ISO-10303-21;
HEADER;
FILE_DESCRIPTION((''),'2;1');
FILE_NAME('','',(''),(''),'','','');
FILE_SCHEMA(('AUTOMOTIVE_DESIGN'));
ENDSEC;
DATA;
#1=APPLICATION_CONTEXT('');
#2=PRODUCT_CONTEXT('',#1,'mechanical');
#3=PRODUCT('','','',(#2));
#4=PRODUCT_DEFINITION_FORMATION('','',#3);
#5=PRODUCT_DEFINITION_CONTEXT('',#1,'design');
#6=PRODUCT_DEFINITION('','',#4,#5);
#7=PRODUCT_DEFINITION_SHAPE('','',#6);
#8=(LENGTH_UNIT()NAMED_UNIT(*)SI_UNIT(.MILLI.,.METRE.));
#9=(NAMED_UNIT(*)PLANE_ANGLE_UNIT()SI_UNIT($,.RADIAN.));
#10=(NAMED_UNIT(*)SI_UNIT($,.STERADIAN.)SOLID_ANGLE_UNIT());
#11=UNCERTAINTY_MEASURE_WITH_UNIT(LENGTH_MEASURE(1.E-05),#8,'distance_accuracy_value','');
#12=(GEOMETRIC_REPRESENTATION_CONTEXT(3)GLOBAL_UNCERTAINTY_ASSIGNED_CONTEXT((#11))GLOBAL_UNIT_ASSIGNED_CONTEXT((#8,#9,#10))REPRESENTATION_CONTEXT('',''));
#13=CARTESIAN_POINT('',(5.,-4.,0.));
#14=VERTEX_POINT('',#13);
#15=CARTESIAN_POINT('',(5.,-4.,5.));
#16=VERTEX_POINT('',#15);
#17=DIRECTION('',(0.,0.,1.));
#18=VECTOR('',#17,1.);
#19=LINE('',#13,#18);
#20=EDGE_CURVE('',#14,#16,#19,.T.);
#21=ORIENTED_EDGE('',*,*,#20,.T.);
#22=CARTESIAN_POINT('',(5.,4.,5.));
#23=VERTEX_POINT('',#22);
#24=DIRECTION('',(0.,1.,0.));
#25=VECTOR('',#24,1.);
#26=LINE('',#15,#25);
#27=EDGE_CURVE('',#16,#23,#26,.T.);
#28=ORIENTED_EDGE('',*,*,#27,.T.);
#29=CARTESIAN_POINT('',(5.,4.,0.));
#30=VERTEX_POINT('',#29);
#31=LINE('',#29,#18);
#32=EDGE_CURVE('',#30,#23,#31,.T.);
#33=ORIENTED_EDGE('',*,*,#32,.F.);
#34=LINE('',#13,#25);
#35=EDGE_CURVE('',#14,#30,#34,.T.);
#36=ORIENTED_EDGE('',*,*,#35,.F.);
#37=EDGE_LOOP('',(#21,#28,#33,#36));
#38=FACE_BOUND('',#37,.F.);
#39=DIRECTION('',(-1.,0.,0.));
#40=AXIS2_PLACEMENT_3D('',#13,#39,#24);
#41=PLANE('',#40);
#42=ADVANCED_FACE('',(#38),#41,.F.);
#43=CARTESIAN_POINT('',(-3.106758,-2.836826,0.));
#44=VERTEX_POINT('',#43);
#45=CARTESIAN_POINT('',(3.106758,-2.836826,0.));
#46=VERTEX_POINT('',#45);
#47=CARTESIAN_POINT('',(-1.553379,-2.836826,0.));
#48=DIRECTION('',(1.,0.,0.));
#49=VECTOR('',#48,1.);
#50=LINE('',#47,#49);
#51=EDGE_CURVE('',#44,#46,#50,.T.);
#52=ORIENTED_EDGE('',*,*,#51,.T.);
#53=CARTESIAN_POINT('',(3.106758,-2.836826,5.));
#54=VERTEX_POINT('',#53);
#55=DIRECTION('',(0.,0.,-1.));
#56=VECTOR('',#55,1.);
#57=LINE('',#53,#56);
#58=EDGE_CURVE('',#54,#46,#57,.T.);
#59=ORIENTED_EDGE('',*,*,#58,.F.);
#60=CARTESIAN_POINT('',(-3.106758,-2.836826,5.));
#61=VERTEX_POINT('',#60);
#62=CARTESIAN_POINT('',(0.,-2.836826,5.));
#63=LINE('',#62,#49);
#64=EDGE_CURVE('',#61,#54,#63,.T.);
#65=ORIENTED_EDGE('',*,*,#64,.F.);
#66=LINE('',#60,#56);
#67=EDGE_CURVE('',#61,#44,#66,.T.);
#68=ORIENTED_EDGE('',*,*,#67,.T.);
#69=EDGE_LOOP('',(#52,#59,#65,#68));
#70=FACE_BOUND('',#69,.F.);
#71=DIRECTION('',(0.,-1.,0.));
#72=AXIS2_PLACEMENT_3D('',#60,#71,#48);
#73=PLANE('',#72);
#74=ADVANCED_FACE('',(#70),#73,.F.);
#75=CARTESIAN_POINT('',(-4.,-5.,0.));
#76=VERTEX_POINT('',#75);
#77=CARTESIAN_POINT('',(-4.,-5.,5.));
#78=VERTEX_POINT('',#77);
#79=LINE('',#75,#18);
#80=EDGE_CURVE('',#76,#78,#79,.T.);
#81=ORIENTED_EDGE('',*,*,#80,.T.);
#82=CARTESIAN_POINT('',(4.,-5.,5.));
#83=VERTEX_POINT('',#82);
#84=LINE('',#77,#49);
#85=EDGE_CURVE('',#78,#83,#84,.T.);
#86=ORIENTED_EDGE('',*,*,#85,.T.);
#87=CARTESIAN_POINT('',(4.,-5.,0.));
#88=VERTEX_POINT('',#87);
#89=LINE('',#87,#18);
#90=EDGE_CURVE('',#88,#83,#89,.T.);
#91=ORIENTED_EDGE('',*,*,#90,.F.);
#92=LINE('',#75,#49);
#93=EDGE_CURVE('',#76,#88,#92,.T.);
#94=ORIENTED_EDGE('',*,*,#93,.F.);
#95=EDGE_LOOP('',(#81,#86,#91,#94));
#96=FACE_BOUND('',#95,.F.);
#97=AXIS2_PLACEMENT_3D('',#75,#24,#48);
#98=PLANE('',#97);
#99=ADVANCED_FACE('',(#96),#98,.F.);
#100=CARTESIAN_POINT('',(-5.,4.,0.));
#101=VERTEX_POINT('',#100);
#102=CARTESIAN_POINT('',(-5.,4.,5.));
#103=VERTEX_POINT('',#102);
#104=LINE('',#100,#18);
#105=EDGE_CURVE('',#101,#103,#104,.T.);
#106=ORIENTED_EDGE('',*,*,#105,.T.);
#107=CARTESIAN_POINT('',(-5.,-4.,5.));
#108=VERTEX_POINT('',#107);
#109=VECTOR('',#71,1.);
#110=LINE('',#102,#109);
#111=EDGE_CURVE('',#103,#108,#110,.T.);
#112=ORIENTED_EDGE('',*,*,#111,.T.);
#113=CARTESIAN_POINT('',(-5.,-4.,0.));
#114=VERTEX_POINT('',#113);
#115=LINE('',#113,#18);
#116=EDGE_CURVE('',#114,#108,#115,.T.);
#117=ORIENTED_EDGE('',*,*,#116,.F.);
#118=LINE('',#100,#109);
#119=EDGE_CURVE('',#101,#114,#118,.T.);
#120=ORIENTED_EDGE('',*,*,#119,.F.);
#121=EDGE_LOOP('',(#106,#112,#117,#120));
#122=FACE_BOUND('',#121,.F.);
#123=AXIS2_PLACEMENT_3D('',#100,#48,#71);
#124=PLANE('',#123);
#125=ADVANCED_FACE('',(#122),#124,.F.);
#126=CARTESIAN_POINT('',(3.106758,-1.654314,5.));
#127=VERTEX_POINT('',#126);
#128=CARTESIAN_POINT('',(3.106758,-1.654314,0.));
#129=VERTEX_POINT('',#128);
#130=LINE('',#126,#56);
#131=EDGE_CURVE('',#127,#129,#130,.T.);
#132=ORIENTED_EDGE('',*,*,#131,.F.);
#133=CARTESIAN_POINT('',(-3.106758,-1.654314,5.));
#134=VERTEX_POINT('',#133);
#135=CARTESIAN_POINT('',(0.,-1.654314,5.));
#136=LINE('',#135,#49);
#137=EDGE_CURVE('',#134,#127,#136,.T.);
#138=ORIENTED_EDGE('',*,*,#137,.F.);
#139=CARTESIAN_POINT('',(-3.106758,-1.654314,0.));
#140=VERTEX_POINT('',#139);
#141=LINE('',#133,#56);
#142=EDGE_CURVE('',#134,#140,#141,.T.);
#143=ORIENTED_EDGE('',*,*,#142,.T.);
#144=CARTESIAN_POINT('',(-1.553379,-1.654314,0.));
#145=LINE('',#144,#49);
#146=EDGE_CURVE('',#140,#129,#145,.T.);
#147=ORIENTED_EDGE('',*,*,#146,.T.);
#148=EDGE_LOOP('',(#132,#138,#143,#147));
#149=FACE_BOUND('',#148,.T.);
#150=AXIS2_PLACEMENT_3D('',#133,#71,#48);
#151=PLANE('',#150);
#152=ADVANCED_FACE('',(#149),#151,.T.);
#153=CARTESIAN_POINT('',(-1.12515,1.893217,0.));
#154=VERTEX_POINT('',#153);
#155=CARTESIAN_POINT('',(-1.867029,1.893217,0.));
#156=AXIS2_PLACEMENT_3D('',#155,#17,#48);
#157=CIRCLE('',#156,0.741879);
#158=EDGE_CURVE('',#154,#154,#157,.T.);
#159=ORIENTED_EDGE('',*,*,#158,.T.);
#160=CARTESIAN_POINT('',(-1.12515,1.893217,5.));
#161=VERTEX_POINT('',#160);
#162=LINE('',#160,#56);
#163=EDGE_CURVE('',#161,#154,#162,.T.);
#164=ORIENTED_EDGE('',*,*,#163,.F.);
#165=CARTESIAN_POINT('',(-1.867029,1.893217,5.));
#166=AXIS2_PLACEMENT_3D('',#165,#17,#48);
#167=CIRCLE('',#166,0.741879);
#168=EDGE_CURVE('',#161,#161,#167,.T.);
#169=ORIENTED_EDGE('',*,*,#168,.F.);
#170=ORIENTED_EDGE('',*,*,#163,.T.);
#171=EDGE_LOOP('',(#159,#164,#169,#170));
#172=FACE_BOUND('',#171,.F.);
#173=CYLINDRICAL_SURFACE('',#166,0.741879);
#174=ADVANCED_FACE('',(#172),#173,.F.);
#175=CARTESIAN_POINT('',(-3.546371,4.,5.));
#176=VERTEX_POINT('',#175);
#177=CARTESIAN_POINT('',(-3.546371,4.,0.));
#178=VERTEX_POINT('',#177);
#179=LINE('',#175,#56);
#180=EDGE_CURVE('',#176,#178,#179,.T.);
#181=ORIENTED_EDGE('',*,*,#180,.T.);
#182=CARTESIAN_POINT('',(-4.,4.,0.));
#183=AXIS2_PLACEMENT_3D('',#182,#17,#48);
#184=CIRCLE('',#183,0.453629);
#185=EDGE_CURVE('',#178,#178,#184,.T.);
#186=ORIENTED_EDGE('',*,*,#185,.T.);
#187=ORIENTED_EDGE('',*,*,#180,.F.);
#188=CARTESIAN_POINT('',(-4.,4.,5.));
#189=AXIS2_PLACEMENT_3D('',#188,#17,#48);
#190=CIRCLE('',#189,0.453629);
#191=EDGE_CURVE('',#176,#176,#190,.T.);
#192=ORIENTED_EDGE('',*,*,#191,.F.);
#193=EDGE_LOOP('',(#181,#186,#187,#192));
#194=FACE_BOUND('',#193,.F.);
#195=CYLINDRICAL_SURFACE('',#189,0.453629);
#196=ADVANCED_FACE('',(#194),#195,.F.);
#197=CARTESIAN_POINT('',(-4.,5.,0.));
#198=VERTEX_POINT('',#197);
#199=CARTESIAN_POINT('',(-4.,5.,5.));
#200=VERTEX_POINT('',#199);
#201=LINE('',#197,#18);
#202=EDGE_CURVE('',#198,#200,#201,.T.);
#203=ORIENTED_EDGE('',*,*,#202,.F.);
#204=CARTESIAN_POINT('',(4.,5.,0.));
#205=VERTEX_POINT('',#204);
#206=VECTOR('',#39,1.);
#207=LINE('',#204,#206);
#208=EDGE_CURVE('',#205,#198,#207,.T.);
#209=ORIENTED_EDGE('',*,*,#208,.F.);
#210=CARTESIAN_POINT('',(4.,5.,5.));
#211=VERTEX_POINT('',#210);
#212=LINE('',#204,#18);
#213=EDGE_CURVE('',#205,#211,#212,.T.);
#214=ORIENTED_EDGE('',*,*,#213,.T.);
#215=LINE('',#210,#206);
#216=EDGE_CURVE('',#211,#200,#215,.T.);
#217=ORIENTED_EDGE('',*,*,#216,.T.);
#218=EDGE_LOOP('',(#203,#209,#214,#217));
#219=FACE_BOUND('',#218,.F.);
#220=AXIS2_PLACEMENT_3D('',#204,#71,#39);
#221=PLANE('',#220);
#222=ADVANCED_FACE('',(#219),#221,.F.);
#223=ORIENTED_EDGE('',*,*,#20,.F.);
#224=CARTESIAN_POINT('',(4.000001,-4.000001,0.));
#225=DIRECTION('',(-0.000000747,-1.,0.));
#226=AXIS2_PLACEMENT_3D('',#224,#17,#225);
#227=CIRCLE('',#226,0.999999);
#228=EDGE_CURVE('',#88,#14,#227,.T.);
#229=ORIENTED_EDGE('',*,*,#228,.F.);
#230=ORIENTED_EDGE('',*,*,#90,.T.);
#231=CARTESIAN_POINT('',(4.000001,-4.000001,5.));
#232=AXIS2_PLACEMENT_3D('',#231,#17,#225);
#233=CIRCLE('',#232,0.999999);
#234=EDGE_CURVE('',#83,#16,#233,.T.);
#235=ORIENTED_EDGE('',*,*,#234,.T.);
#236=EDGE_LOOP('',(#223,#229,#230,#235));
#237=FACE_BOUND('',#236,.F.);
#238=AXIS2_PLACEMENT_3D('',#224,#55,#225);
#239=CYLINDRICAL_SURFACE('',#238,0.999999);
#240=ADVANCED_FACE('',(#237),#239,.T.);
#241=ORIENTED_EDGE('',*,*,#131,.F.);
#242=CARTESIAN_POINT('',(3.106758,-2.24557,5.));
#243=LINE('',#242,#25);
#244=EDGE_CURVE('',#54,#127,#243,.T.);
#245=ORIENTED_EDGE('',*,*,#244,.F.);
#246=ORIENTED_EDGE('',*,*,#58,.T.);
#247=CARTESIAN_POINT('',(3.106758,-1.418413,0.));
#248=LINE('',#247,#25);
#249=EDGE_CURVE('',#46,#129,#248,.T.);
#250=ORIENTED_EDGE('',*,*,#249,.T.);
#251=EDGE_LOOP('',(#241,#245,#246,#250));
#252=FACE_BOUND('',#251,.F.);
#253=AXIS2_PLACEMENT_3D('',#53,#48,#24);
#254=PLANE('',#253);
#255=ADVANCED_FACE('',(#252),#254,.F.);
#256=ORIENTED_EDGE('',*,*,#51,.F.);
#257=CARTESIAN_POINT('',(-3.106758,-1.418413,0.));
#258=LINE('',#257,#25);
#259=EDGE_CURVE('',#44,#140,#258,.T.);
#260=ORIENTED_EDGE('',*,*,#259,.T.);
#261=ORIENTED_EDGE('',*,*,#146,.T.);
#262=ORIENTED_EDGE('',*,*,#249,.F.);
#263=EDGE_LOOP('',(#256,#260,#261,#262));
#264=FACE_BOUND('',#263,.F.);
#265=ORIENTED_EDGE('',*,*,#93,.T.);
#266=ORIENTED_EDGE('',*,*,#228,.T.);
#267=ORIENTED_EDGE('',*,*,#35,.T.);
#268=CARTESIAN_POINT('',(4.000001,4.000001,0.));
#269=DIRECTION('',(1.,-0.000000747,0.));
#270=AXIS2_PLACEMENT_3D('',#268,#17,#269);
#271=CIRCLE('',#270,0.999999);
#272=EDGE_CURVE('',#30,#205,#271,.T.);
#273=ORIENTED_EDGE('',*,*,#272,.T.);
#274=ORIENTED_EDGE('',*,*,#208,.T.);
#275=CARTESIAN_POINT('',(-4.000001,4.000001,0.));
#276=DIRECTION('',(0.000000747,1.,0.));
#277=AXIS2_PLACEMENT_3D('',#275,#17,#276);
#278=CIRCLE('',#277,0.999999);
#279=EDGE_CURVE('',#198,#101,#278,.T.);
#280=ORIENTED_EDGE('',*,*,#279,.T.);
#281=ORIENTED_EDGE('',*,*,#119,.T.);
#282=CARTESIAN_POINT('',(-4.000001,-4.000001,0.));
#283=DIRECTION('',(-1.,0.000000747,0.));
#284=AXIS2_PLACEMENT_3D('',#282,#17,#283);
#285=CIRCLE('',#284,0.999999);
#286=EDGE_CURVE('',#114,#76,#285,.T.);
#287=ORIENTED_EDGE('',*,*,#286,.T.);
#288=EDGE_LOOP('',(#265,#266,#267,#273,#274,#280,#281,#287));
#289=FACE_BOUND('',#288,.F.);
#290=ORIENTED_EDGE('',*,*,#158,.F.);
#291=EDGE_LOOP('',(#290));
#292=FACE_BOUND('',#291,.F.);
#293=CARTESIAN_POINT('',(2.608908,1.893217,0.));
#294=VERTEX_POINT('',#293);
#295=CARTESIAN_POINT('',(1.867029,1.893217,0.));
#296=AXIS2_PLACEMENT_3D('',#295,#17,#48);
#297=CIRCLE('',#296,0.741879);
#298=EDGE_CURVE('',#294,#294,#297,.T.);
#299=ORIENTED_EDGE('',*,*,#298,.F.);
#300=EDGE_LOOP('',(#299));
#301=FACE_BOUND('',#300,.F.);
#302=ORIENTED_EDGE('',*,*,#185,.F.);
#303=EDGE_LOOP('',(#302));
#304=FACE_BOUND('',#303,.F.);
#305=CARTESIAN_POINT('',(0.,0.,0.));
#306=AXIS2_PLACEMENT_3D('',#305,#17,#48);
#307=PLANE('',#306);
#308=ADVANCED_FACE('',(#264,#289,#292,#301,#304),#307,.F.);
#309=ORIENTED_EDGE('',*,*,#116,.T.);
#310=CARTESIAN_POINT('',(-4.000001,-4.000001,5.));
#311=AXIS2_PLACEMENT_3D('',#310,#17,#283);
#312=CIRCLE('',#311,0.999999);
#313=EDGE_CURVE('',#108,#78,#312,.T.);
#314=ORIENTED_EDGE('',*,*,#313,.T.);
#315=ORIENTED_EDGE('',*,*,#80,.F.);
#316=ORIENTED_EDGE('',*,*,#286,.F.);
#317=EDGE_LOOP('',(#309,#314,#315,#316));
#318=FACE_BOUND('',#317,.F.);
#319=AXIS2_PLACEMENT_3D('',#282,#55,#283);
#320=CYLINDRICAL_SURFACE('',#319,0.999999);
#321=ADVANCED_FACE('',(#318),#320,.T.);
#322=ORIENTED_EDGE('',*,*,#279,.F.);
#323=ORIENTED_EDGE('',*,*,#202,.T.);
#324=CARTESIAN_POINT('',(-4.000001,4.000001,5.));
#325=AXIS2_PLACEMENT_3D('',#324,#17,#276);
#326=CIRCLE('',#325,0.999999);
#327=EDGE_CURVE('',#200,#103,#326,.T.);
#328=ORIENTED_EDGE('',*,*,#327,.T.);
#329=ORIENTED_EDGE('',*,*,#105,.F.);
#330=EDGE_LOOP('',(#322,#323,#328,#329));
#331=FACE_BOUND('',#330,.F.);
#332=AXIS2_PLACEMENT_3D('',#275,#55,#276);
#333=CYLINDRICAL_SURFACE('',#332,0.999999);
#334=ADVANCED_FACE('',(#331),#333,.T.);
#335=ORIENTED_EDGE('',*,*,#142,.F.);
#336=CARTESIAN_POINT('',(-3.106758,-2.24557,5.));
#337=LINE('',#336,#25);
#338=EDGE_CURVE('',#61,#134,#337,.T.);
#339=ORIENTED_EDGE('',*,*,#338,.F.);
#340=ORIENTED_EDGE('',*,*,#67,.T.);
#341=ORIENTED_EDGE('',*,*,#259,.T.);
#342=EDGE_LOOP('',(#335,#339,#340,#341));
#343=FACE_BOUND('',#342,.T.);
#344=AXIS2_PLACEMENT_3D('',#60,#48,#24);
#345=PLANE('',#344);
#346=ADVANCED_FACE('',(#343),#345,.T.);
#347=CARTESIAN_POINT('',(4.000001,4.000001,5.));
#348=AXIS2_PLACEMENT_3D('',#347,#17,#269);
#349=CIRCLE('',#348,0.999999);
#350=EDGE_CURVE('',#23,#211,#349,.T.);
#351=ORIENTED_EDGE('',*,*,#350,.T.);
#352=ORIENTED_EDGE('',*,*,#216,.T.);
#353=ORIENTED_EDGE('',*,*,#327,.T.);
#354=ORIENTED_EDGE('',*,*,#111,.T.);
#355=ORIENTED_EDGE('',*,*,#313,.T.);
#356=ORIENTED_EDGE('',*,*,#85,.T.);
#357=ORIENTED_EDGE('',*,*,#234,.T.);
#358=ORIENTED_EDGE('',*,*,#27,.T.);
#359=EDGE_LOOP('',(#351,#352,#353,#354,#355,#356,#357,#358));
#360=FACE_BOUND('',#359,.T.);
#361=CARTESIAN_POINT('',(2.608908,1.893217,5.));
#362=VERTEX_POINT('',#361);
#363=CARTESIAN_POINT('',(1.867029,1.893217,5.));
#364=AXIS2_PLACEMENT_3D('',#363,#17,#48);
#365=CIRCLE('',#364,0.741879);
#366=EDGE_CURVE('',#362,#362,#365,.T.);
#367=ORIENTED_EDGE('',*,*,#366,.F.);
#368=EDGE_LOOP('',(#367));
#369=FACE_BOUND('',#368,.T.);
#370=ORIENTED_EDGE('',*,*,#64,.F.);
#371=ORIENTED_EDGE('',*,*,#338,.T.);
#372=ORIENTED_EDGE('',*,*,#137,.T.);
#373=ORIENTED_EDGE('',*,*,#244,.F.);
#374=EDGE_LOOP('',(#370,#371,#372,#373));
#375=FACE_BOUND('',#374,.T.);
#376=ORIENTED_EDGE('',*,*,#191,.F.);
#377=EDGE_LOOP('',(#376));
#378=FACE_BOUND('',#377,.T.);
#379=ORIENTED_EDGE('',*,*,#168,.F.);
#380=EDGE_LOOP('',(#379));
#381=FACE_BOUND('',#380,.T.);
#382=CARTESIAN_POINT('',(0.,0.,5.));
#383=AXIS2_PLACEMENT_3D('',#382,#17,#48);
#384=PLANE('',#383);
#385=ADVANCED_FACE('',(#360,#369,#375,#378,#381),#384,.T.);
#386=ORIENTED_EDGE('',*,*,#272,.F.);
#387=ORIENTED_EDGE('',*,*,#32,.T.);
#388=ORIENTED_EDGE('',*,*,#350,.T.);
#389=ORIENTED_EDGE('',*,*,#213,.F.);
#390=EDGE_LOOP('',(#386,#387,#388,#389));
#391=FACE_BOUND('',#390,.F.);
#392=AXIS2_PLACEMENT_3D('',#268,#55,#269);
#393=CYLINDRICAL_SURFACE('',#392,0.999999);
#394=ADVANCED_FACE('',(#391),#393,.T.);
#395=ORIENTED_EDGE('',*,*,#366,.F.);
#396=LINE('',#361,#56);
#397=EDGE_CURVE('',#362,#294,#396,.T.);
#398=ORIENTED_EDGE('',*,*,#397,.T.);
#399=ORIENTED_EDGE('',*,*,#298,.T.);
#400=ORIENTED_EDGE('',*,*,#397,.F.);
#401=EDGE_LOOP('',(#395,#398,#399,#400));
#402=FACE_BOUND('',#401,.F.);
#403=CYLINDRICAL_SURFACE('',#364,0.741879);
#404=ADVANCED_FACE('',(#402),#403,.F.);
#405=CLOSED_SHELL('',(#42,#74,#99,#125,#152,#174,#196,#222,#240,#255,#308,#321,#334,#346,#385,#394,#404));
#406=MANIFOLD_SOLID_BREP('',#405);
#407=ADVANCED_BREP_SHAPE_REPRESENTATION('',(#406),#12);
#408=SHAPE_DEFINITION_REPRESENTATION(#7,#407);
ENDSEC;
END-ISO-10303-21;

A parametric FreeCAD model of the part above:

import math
import FreeCAD as App
import Part
import Sketcher
from FreeCAD import Vector
Q = App.Units.Quantity


def add_polygon(sketch, points):
    """Adds a closed chain of lines whose ends are joined by coincident constraints."""
    first, n = sketch.GeometryCount, len(points)
    for a, b in zip(points, points[1:] + points[:1]):
        sketch.addGeometry(Part.LineSegment(App.Vector(*a, 0), App.Vector(*b, 0)), False)
    for i in range(n):
        sketch.addConstraint(Sketcher.Constraint("Coincident", first + i, 2, first + (i + 1) % n, 1))

doc = App.newDocument("Part")
body = doc.addObject("PartDesign::Body", "Body")

sketch1 = body.newObject("Sketcher::SketchObject", "Sketch")
sketch1.AttachmentSupport = (doc.getObject("XY_Plane"), [""])
sketch1.MapMode = "FlatFace"
sketch1.addGeometry(Part.LineSegment(Vector(4, 5, 0), Vector(-4, 5, 0)), False)
sketch1.addGeometry(Part.ArcOfCircle(Part.Circle(Vector(-4.000001, 4.000001, 0), Vector(0, 0, 1), 0.999999), math.radians(89.999957), math.radians(180.000043)), False)
sketch1.addGeometry(Part.LineSegment(Vector(-5, 4, 0), Vector(-5, -4, 0)), False)
sketch1.addGeometry(Part.ArcOfCircle(Part.Circle(Vector(-4.000001, -4.000001, 0), Vector(0, 0, 1), 0.999999), math.radians(179.999957), math.radians(270.000043)), False)
sketch1.addGeometry(Part.LineSegment(Vector(-4, -5, 0), Vector(4, -5, 0)), False)
sketch1.addGeometry(Part.ArcOfCircle(Part.Circle(Vector(4.000001, -4.000001, 0), Vector(0, 0, 1), 0.999999), math.radians(-90.000043), math.radians(0.000043)), False)
sketch1.addGeometry(Part.LineSegment(Vector(5, -4, 0), Vector(5, 4, 0)), False)
sketch1.addGeometry(Part.ArcOfCircle(Part.Circle(Vector(4.000001, 4.000001, 0), Vector(0, 0, 1), 0.999999), math.radians(-0.000043), math.radians(90.000043)), False)
sketch1.addConstraint(Sketcher.Constraint("Tangent", 0, 2, 1, 1))
sketch1.addConstraint(Sketcher.Constraint("Tangent", 1, 2, 2, 1))
sketch1.addConstraint(Sketcher.Constraint("Tangent", 2, 2, 3, 1))
sketch1.addConstraint(Sketcher.Constraint("Tangent", 3, 2, 4, 1))
sketch1.addConstraint(Sketcher.Constraint("Tangent", 4, 2, 5, 1))
sketch1.addConstraint(Sketcher.Constraint("Tangent", 5, 2, 6, 1))
sketch1.addConstraint(Sketcher.Constraint("Tangent", 6, 2, 7, 1))
sketch1.addConstraint(Sketcher.Constraint("Tangent", 7, 2, 0, 1))
sketch1.addConstraint(Sketcher.Constraint("Horizontal", 0))
sketch1.addConstraint(Sketcher.Constraint("Vertical", 2))
sketch1.addConstraint(Sketcher.Constraint("Horizontal", 4))
sketch1.addConstraint(Sketcher.Constraint("Vertical", 6))
sketch1.addConstraint(Sketcher.Constraint("Equal", 1, 3))
sketch1.addConstraint(Sketcher.Constraint("Equal", 3, 5))
sketch1.addConstraint(Sketcher.Constraint("Equal", 5, 7))
sketch1.addConstraint(Sketcher.Constraint("Symmetric", 1, 3, 5, 3, -1, 1))
sketch1.addConstraint(Sketcher.Constraint("Equal", 4, 2))
sketch1.addConstraint(Sketcher.Constraint("Radius", 1, Q("0.999999 mm")))
sketch1.addConstraint(Sketcher.Constraint("DistanceX", 0, 2, 0, 1, Q("8 mm")))
pad1 = body.newObject("PartDesign::Pad", "Pad")
pad1.Profile = sketch1
pad1.Length = 5

sketch2 = body.newObject("Sketcher::SketchObject", "Sketch001")
sketch2.AttachmentSupport = (doc.getObject("XY_Plane"), [""])
sketch2.MapMode = "FlatFace"
sketch2.AttachmentOffset = App.Placement(Vector(0, 0, 5), App.Rotation())
sketch2.addGeometry(Part.Circle(Vector(-1.867029, 1.893217, 0), Vector(0, 0, 1), 0.741879), False)
sketch2.addGeometry(Part.Circle(Vector(1.867029, 1.893217, 0), Vector(0, 0, 1), 0.741879), False)
add_polygon(sketch2, [(-3.106758, -1.654314), (-3.106758, -2.836826), (3.106758, -2.836826), (3.106758, -1.654314)])
sketch2.addConstraint(Sketcher.Constraint("Vertical", 2))
sketch2.addConstraint(Sketcher.Constraint("Horizontal", 3))
sketch2.addConstraint(Sketcher.Constraint("Vertical", 4))
sketch2.addConstraint(Sketcher.Constraint("Horizontal", 5))
sketch2.addConstraint(Sketcher.Constraint("Equal", 0, 1))
sketch2.addConstraint(Sketcher.Constraint("Symmetric", 0, 3, 1, 3, -2))
sketch2.addConstraint(Sketcher.Constraint("Diameter", 0, Q("1.483758 mm")))
sketch2.addConstraint(Sketcher.Constraint("DistanceY", 2, 2, 2, 1, Q("1.182511 mm")))
sketch2.addConstraint(Sketcher.Constraint("DistanceX", 3, 1, 3, 2, Q("6.213516 mm")))
sketch2.addConstraint(Sketcher.Constraint("DistanceX", 0, 3, -1, 1, Q("1.867029 mm")))
sketch2.addConstraint(Sketcher.Constraint("DistanceX", 2, 2, -1, 1, Q("3.106758 mm")))
sketch2.addConstraint(Sketcher.Constraint("DistanceY", 4, 2, 1, 3, Q("3.547531 mm")))
sketch2.addConstraint(Sketcher.Constraint("DistanceY", -1, 1, 0, 3, Q("1.893217 mm")))
pocket1 = body.newObject("PartDesign::Pocket", "Pocket")
pocket1.Profile = sketch2
pocket1.Length = 25

sketch3 = body.newObject("Sketcher::SketchObject", "Sketch002")
sketch3.AttachmentSupport = (doc.getObject("XY_Plane"), [""])
sketch3.MapMode = "FlatFace"
sketch3.AttachmentOffset = App.Placement(Vector(0, 0, 5), App.Rotation())
sketch3.addGeometry(Part.Circle(Vector(-4, 4, 0), Vector(0, 0, 1), 0.453629), False)
sketch3.addConstraint(Sketcher.Constraint("DistanceX", 0, 3, -1, 1, Q("4 mm")))
sketch3.addConstraint(Sketcher.Constraint("DistanceY", -1, 1, 0, 3, Q("4 mm")))
sketch3.addConstraint(Sketcher.Constraint("Diameter", 0, Q("0.907258 mm")))
pocket2 = body.newObject("PartDesign::Pocket", "Pocket001")
pocket2.Profile = sketch3
pocket2.Type = "ThroughAll"

doc.recompute()
